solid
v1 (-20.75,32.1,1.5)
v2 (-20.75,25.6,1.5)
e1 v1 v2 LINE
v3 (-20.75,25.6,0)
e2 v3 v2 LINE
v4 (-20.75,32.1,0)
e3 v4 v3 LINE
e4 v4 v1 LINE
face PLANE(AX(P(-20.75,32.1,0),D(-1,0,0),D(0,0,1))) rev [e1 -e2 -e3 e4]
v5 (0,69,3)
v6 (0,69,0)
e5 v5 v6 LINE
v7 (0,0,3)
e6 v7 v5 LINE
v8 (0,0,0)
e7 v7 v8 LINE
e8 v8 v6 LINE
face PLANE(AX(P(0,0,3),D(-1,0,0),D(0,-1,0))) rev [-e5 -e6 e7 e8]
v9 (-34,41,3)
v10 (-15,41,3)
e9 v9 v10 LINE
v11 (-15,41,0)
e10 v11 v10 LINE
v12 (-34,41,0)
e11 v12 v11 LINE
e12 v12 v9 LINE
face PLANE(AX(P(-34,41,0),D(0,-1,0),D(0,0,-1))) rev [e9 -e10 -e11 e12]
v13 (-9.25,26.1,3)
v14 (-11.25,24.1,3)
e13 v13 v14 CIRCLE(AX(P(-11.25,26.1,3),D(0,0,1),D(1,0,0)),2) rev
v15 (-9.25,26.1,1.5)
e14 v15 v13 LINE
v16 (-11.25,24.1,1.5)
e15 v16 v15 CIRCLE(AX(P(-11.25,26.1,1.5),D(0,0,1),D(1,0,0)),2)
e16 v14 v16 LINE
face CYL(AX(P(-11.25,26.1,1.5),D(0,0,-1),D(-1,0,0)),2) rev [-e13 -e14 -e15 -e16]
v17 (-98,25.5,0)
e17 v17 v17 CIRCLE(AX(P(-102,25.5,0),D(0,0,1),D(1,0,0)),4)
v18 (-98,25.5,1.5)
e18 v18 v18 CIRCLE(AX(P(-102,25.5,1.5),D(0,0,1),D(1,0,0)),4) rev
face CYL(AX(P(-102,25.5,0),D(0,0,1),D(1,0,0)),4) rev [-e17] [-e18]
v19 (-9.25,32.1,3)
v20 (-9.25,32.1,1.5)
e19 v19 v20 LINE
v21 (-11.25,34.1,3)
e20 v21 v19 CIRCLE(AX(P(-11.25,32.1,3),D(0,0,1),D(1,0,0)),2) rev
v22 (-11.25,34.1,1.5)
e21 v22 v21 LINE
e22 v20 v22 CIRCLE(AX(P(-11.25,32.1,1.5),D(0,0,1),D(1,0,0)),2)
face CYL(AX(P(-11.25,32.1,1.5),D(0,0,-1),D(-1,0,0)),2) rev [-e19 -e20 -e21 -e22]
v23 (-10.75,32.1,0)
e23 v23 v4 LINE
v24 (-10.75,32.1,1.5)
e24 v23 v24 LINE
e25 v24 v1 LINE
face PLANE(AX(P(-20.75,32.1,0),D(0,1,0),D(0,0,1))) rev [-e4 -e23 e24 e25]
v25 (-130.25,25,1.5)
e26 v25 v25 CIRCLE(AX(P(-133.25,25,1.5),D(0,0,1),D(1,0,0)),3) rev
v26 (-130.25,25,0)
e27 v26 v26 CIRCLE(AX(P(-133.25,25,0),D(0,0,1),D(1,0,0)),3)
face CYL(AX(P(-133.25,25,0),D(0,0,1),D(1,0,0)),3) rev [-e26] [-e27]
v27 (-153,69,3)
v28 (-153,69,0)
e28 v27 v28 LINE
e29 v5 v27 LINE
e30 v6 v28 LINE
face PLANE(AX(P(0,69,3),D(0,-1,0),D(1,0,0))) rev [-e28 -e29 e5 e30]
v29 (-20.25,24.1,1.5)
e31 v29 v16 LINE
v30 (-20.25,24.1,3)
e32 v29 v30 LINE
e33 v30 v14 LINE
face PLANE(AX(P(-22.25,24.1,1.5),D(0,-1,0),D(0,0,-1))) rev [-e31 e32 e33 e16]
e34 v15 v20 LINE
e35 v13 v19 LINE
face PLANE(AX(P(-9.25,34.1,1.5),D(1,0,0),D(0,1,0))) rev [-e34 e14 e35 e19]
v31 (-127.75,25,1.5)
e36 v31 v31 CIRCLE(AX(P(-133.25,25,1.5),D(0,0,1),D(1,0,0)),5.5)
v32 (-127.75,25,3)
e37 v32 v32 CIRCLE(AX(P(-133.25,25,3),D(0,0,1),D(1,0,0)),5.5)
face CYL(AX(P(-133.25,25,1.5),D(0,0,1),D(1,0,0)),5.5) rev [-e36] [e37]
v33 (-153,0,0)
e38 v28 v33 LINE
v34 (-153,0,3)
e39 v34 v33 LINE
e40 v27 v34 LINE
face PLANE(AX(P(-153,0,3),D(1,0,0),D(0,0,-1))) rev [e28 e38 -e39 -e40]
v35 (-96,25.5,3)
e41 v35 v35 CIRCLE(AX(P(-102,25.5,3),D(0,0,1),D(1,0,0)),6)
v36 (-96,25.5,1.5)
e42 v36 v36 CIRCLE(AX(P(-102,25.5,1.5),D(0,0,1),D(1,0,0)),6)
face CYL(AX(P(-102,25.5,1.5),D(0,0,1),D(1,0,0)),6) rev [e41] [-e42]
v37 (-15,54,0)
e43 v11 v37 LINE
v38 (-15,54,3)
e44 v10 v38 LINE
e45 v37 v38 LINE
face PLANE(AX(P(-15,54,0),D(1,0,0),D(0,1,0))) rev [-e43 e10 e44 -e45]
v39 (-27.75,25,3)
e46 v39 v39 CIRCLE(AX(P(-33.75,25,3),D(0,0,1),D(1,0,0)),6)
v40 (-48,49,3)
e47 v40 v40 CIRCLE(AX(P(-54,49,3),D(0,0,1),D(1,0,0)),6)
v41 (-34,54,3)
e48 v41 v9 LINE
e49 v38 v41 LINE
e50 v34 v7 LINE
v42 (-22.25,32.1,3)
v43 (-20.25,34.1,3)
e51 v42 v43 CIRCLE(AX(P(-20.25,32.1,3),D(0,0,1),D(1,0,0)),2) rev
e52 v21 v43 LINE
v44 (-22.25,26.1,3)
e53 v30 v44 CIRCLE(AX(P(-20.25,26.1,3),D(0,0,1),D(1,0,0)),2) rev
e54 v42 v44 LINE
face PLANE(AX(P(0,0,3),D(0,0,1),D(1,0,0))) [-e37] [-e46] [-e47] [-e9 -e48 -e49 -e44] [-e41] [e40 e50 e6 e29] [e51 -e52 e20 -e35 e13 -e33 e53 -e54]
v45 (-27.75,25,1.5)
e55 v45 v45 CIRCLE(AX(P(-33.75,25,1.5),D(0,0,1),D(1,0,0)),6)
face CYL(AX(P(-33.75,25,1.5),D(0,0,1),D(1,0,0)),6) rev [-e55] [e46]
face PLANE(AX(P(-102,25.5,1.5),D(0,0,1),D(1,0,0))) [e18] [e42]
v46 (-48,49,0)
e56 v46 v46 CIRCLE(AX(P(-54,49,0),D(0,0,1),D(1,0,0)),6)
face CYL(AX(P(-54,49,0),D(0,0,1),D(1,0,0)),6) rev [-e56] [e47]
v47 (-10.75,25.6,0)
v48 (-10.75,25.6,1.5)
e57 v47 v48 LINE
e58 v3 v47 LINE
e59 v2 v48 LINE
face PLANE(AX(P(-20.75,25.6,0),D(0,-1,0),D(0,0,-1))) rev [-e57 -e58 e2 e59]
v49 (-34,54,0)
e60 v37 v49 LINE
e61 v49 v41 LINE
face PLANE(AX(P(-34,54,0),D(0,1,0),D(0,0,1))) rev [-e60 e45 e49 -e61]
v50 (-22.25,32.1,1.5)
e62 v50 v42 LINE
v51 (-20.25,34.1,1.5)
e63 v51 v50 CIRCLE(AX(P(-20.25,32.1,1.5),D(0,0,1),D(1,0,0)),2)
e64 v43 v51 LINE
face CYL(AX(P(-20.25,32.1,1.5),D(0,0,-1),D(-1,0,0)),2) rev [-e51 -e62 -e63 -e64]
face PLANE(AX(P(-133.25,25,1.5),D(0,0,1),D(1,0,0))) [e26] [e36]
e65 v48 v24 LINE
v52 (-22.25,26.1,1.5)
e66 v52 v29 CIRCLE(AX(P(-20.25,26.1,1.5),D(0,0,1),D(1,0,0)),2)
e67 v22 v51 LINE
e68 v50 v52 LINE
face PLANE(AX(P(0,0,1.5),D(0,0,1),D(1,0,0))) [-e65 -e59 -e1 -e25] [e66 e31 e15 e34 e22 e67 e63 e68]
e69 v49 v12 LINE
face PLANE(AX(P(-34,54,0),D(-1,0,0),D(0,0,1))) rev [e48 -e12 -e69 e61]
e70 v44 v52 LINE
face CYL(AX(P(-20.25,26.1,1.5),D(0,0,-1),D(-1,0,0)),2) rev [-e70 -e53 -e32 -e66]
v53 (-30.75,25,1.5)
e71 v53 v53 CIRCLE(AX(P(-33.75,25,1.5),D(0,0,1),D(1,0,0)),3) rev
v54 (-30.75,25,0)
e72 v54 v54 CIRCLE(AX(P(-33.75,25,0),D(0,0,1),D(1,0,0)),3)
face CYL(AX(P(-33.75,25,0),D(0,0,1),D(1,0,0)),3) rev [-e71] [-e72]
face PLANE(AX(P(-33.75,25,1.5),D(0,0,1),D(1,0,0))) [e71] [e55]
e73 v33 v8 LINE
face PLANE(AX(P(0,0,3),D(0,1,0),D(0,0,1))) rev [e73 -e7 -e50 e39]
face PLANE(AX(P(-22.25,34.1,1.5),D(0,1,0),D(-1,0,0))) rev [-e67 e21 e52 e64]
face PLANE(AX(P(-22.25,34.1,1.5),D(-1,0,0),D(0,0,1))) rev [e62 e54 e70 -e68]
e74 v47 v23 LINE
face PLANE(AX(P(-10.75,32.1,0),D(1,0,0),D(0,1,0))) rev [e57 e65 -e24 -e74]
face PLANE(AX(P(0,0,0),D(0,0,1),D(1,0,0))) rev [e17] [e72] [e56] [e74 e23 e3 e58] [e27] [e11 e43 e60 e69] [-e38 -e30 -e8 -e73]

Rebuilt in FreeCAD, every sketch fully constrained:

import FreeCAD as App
import Part
import Sketcher
from FreeCAD import Vector


def edges_at(feature, points):
    """Names of the edges that pass closest to the given points."""
    edges = feature.Shape.Edges
    near = lambda p: min(range(len(edges)), key=lambda i: edges[i].distToShape(Part.Vertex(*p))[0])
    return sorted({f"Edge{near(p) + 1}" for p in points})


def add_polygon(sketch, points):
    """Adds a closed chain of lines whose ends are joined by coincident constraints."""
    first, n = sketch.GeometryCount, len(points)
    for a, b in zip(points, points[1:] + points[:1]):
        sketch.addGeometry(Part.LineSegment(App.Vector(*a, 0), App.Vector(*b, 0)), False)
    for i in range(n):
        sketch.addConstraint(Sketcher.Constraint("Coincident", first + i, 2, first + (i + 1) % n, 1))

doc = App.newDocument("Part")
body = doc.addObject("PartDesign::Body", "Body")

# Sketch on XY plane
sketch1 = doc.addObject("Sketcher::SketchObject", "Sketch")
body.addObject(sketch1)
sketch1.AttachmentSupport = (doc.XY_Plane, [""])
sketch1.MapMode = "FlatFace"
add_polygon(sketch1, [(-153, 69), (-153, 0), (0, 0), (0, 69)])  # lines 0-3
sketch1.addConstraint(Sketcher.Constraint("Vertical", 0))
sketch1.addConstraint(Sketcher.Constraint("Horizontal", 1))
sketch1.addConstraint(Sketcher.Constraint("Vertical", 2))
sketch1.addConstraint(Sketcher.Constraint("Horizontal", 3))
sketch1.addConstraint(Sketcher.Constraint("Coincident", 1, 2, -1, 1))
sketch1.addConstraint(Sketcher.Constraint("DistanceX", 1, 1, 1, 2, 153.0))
sketch1.addConstraint(Sketcher.Constraint("DistanceY", 0, 2, 0, 1, 69.0))
pad1 = doc.addObject("PartDesign::Pad", "Pad")
body.addObject(pad1)
pad1.Profile = sketch1
pad1.Length = 3

# Sketch on XY plane
sketch2 = doc.addObject("Sketcher::SketchObject", "Sketch001")
body.addObject(sketch2)
sketch2.AttachmentSupport = (doc.XY_Plane, [""])
sketch2.MapMode = "FlatFace"
sketch2.AttachmentOffset = App.Placement(Vector(0, 0, 3), App.Rotation())
sketch2.addGeometry(Part.Circle(Vector(-133.25, 25, 0), Vector(0, 0, 1), 3), False)  # 0
sketch2.addGeometry(Part.Circle(Vector(-102, 25.5, 0), Vector(0, 0, 1), 4), False)  # 1
sketch2.addGeometry(Part.Circle(Vector(-33.75, 25, 0), Vector(0, 0, 1), 3), False)  # 2
sketch2.addGeometry(Part.Circle(Vector(-54, 49, 0), Vector(0, 0, 1), 6), False)  # 3
add_polygon(sketch2, [(-34, 54), (-34, 41), (-15, 41), (-15, 54)])  # lines 4-7
sketch2.addConstraint(Sketcher.Constraint("Vertical", 4))
sketch2.addConstraint(Sketcher.Constraint("Horizontal", 5))
sketch2.addConstraint(Sketcher.Constraint("Vertical", 6))
sketch2.addConstraint(Sketcher.Constraint("Horizontal", 7))
sketch2.addConstraint(Sketcher.Constraint("Equal", 0, 2))
sketch2.addConstraint(Sketcher.Constraint("Horizontal", 0, 3, 2, 3))
sketch2.addConstraint(Sketcher.Constraint("Diameter", 0, 6.0))
sketch2.addConstraint(Sketcher.Constraint("Diameter", 1, 8.0))
sketch2.addConstraint(Sketcher.Constraint("Diameter", 3, 12.0))
sketch2.addConstraint(Sketcher.Constraint("DistanceX", 5, 1, 5, 2, 19.0))
sketch2.addConstraint(Sketcher.Constraint("DistanceY", 4, 2, 4, 1, 13.0))
sketch2.addConstraint(Sketcher.Constraint("DistanceY", -1, 1, 0, 3, 25.0))
sketch2.addConstraint(Sketcher.Constraint("DistanceX", 1, 3, -1, 1, 102.0))
sketch2.addConstraint(Sketcher.Constraint("DistanceX", 3, 3, -1, 1, 54.0))
sketch2.addConstraint(Sketcher.Constraint("DistanceY", -1, 1, 3, 3, 49.0))
sketch2.addConstraint(Sketcher.Constraint("DistanceX", 4, 2, -1, 1, 34.0))
sketch2.addConstraint(Sketcher.Constraint("DistanceY", -1, 1, 4, 2, 41.0))
sketch2.addConstraint(Sketcher.Constraint("DistanceY", -1, 1, 1, 3, 25.5))
sketch2.addConstraint(Sketcher.Constraint("DistanceX", 0, 3, 2, 3, 99.5))
sketch2.addConstraint(Sketcher.Constraint("DistanceX", 0, 3, -1, 1, 133.25))
pocket1 = doc.addObject("PartDesign::Pocket", "Pocket")
body.addObject(pocket1)
pocket1.Profile = sketch2
pocket1.Length = 3

# Sketch on XY plane
sketch3 = doc.addObject("Sketcher::SketchObject", "Sketch002")
body.addObject(sketch3)
sketch3.AttachmentSupport = (doc.XY_Plane, [""])
sketch3.MapMode = "FlatFace"
sketch3.AttachmentOffset = App.Placement(Vector(0, 0, 3), App.Rotation())
sketch3.addGeometry(Part.Circle(Vector(-133.25, 25, 0), Vector(0, 0, 1), 5.5), False)
sketch3.addGeometry(Part.Circle(Vector(-102, 25.5, 0), Vector(0, 0, 1), 6), False)
sketch3.addGeometry(Part.Circle(Vector(-33.75, 25, 0), Vector(0, 0, 1), 6), False)
sketch3.addConstraint(Sketcher.Constraint("Equal", 1, 2))
sketch3.addConstraint(Sketcher.Constraint("Horizontal", 0, 3, 2, 3))
sketch3.addConstraint(Sketcher.Constraint("Diameter", 0, 11.0))
sketch3.addConstraint(Sketcher.Constraint("Diameter", 1, 12.0))
sketch3.addConstraint(Sketcher.Constraint("DistanceY", -1, 1, 0, 3, 25.0))
sketch3.addConstraint(Sketcher.Constraint("DistanceX", 1, 3, -1, 1, 102.0))
sketch3.addConstraint(Sketcher.Constraint("DistanceY", -1, 1, 1, 3, 25.5))
sketch3.addConstraint(Sketcher.Constraint("DistanceX", 0, 3, 2, 3, 99.5))
sketch3.addConstraint(Sketcher.Constraint("DistanceX", 0, 3, -1, 1, 133.25))
pocket2 = doc.addObject("PartDesign::Pocket", "Pocket001")
body.addObject(pocket2)
pocket2.Profile = sketch3
pocket2.Length = 1.5

# Sketch on XY plane
sketch4 = doc.addObject("Sketcher::SketchObject", "Sketch003")
body.addObject(sketch4)
sketch4.AttachmentSupport = (doc.XY_Plane, [""])
sketch4.MapMode = "FlatFace"
sketch4.AttachmentOffset = App.Placement(Vector(0, 0, 3), App.Rotation())
add_polygon(sketch4, [(-22.25, 34.1), (-22.25, 24.1), (-9.25, 24.1), (-9.25, 34.1)])  # lines 0-3
sketch4.addConstraint(Sketcher.Constraint("Vertical", 0))
sketch4.addConstraint(Sketcher.Constraint("Horizontal", 1))
sketch4.addConstraint(Sketcher.Constraint("Vertical", 2))
sketch4.addConstraint(Sketcher.Constraint("Horizontal", 3))
sketch4.addConstraint(Sketcher.Constraint("DistanceX", 1, 1, 1, 2, 13.0))
sketch4.addConstraint(Sketcher.Constraint("DistanceY", 0, 2, 0, 1, 10.0))
sketch4.addConstraint(Sketcher.Constraint("DistanceY", -1, 1, 0, 2, 24.1))
sketch4.addConstraint(Sketcher.Constraint("DistanceX", 0, 2, -1, 1, 22.25))
pocket3 = doc.addObject("PartDesign::Pocket", "Pocket002")
body.addObject(pocket3)
pocket3.Profile = sketch4
pocket3.Length = 1.5

# Sketch on XY plane
sketch5 = doc.addObject("Sketcher::SketchObject", "Sketch004")
body.addObject(sketch5)
sketch5.AttachmentSupport = (doc.XY_Plane, [""])
sketch5.MapMode = "FlatFace"
sketch5.AttachmentOffset = App.Placement(Vector(0, 0, 1.5), App.Rotation())
add_polygon(sketch5, [(-20.75, 32.1), (-20.75, 25.6), (-10.75, 25.6), (-10.75, 32.1)])  # lines 0-3
sketch5.addConstraint(Sketcher.Constraint("Vertical", 0))
sketch5.addConstraint(Sketcher.Constraint("Horizontal", 1))
sketch5.addConstraint(Sketcher.Constraint("Vertical", 2))
sketch5.addConstraint(Sketcher.Constraint("Horizontal", 3))
sketch5.addConstraint(Sketcher.Constraint("DistanceX", 1, 1, 1, 2, 10.0))
sketch5.addConstraint(Sketcher.Constraint("DistanceY", 0, 2, 0, 1, 6.5))
sketch5.addConstraint(Sketcher.Constraint("DistanceY", -1, 1, 0, 2, 25.6))
sketch5.addConstraint(Sketcher.Constraint("DistanceX", 0, 2, -1, 1, 20.75))
pocket4 = doc.addObject("PartDesign::Pocket", "Pocket003")
body.addObject(pocket4)
pocket4.Profile = sketch5
pocket4.Length = 1.5
doc.recompute()

fillet = doc.addObject("PartDesign::Fillet", "Fillet")
body.addObject(fillet)
fillet.Base = (pocket4, edges_at(pocket4, [
    (-22.25, 24.1, 2.25),
    (-22.25, 34.1, 2.25),
    (-9.25, 34.1, 2.25),
    (-9.25, 24.1, 2.25),
]))
fillet.Radius = 2

doc.recompute()
